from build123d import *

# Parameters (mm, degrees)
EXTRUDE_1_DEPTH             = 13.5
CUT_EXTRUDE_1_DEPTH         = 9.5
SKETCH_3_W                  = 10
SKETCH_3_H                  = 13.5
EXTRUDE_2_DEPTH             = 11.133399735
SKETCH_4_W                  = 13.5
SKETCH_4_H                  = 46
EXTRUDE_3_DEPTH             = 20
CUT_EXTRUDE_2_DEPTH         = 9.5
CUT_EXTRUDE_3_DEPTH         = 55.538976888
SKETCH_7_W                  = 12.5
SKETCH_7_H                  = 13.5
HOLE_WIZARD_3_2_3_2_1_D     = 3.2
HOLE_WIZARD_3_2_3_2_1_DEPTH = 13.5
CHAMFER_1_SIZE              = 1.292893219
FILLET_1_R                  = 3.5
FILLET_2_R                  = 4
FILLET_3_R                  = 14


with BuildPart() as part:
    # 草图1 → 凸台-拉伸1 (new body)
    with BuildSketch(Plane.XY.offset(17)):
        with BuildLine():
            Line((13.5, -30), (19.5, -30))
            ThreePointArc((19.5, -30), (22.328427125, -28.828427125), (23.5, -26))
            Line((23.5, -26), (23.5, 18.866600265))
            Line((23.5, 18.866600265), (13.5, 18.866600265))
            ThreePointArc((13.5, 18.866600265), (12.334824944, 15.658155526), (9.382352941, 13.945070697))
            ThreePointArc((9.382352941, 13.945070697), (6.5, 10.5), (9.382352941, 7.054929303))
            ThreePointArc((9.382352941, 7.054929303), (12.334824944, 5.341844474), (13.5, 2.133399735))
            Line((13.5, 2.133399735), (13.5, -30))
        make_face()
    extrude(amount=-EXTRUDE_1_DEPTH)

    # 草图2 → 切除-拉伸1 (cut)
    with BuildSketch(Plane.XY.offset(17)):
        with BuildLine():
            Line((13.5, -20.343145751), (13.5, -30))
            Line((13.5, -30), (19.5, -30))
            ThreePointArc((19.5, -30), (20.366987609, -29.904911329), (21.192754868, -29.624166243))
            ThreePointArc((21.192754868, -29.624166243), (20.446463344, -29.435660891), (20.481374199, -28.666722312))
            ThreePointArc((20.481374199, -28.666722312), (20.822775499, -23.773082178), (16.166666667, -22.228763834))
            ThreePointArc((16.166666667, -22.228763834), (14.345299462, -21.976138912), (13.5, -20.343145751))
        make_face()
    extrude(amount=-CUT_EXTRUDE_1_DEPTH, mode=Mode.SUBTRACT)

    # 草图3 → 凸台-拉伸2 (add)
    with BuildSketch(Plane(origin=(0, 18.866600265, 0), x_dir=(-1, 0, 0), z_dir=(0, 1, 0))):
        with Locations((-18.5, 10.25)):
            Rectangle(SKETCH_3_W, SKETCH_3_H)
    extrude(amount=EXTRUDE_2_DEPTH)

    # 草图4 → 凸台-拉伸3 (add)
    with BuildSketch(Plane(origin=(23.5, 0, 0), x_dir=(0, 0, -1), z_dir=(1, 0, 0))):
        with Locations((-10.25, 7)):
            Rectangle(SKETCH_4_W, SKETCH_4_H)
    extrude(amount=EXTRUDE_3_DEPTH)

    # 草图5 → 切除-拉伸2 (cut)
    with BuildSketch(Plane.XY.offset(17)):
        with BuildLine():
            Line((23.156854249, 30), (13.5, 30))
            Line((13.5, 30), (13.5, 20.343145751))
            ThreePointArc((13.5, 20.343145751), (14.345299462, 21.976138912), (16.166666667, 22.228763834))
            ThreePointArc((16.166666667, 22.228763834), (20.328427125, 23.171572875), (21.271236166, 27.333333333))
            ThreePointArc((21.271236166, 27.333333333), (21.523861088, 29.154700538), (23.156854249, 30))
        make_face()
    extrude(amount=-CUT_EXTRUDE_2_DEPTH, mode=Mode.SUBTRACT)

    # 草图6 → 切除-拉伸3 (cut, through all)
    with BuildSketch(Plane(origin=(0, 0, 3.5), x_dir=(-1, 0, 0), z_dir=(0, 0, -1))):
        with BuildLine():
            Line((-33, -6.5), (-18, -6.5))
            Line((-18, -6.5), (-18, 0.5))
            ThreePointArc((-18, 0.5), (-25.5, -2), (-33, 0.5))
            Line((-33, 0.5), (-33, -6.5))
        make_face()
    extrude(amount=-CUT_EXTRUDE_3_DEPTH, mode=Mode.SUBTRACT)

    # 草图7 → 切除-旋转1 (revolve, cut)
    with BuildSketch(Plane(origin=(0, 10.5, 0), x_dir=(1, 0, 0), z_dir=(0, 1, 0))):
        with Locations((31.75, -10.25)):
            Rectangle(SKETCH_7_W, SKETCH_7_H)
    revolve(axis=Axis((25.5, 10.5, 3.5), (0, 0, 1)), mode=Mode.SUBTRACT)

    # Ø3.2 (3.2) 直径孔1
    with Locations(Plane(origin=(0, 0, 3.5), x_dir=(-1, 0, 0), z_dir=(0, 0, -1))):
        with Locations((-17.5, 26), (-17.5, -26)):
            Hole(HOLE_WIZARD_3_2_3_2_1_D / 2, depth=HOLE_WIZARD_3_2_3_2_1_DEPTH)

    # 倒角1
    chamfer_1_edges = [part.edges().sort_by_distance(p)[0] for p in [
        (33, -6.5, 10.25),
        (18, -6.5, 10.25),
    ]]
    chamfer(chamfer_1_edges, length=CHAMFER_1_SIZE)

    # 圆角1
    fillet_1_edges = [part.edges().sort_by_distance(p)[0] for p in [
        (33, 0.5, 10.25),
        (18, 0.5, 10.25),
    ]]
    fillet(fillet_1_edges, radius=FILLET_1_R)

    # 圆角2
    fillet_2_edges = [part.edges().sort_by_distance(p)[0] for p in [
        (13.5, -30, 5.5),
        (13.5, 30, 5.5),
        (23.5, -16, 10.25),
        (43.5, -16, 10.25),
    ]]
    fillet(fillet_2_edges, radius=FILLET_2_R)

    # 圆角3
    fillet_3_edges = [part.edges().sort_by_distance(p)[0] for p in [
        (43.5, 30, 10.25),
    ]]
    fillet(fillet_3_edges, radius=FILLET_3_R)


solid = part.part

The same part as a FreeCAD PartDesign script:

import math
import FreeCAD as App
import Part
import Sketcher

V = App.Vector
Q = App.Units.Quantity


def edges_at(feature, points):
    """Names of the edges that pass closest to the given points."""
    edges = feature.Shape.Edges
    near = lambda p: min(range(len(edges)), key=lambda i: edges[i].distToShape(Part.Vertex(*p))[0])
    return sorted({f"Edge{near(p) + 1}" for p in points})

doc = App.newDocument("Part")
body = doc.addObject("PartDesign::Body", "Body")

# Sketch on XY plane
sketch1 = body.newObject("Sketcher::SketchObject", "Sketch")
sketch1.AttachmentSupport = (doc.getObject("XY_Plane"), [""])
sketch1.MapMode = "FlatFace"
sketch1.AttachmentOffset = App.Placement(V(0, 0, 17), App.Rotation())
sketch1.addGeometry([
    Part.LineSegment(V(13.5, -30, 0), V(19.5, -30, 0)),  # 0
    Part.ArcOfCircle(Part.Circle(V(19.5, -26, 0), V(0, 0, 1), 4), math.radians(-90), math.radians(0)),  # 1
    Part.LineSegment(V(23.5, -26, 0), V(23.5, 18.8666, 0)),  # 2
    Part.LineSegment(V(23.5, 18.8666, 0), V(13.5, 18.8666, 0)),  # 3
    Part.ArcOfCircle(Part.Circle(V(8.5, 18.8666, 0), V(0, 0, 1), 5), math.radians(-79.835751), math.radians(0)),  # 4
    Part.ArcOfCircle(Part.Circle(V(10, 10.5, 0), V(0, 0, 1), 3.5), math.radians(100.164249), math.radians(259.835751)),  # 5
    Part.ArcOfCircle(Part.Circle(V(8.5, 2.1334, 0), V(0, 0, 1), 5), math.radians(0), math.radians(79.835751)),  # 6
    Part.LineSegment(V(13.5, 2.1334, 0), V(13.5, -30, 0)),  # 7
], False)
sketch1.addConstraint([
    Sketcher.Constraint("Tangent", 0, 2, 1, 1),
    Sketcher.Constraint("Tangent", 1, 2, 2, 1),
    Sketcher.Constraint("Coincident", 2, 2, 3, 1),
    Sketcher.Constraint("Coincident", 3, 2, 4, 2),
    Sketcher.Constraint("Tangent", 4, 1, 5, 1),
    Sketcher.Constraint("Tangent", 5, 2, 6, 2),
    Sketcher.Constraint("Tangent", 6, 1, 7, 1),
    Sketcher.Constraint("Coincident", 7, 2, 0, 1),
    Sketcher.Constraint("Horizontal", 0),
    Sketcher.Constraint("Vertical", 2),
    Sketcher.Constraint("Horizontal", 3),
    Sketcher.Constraint("Vertical", 7),
    Sketcher.Constraint("Equal", 4, 6),
    Sketcher.Constraint("Horizontal", 4, 3, 2, 2),
    Sketcher.Constraint("Vertical", 4, 3, 6, 3),
    Sketcher.Constraint("Radius", 1, Q("4 mm")),
    Sketcher.Constraint("Radius", 4, Q("5 mm")),
    Sketcher.Constraint("Radius", 5, Q("3.5 mm")),
    Sketcher.Constraint("DistanceX", 0, 1, 0, 2, Q("6 mm")),
    Sketcher.Constraint("DistanceY", 1, 3, -1, 1, Q("26 mm")),
    Sketcher.Constraint("DistanceX", -1, 1, 5, 3, Q("10 mm")),
    Sketcher.Constraint("DistanceX", -1, 1, 1, 3, Q("19.5 mm")),
    Sketcher.Constraint("DistanceY", -1, 1, 5, 3, Q("10.5 mm")),
])
pad1 = body.newObject("PartDesign::Pad", "Pad")
pad1.Profile = sketch1
pad1.Length = 13.5
pad1.Reversed = True

# Sketch on XY plane
sketch2 = body.newObject("Sketcher::SketchObject", "Sketch001")
sketch2.AttachmentSupport = (doc.getObject("XY_Plane"), [""])
sketch2.MapMode = "FlatFace"
sketch2.AttachmentOffset = App.Placement(V(0, 0, 17), App.Rotation())
sketch2.addGeometry([
    Part.LineSegment(V(13.5, -20.343146, 0), V(13.5, -30, 0)),  # 0
    Part.LineSegment(V(13.5, -30, 0), V(19.5, -30, 0)),  # 1
    Part.ArcOfCircle(Part.Circle(V(19.5, -26, 0), V(0, 0, 1), 4), math.radians(-90), math.radians(-64.963931)),  # 2
    Part.ArcOfCircle(Part.Circle(V(20.935125, -29.072585, 0), V(0, 0, 1), 0.608781), math.radians(138.188616), math.radians(295.036069)),  # 3
    Part.ArcOfCircle(Part.Circle(V(17.5, -26, 0), V(0, 0, 1), 4), math.radians(-41.811384), math.radians(109.471221)),  # 4
    Part.ArcOfCircle(Part.Circle(V(15.5, -20.343146, 0), V(0, 0, 1), 2), math.radians(-180), math.radians(-70.528779)),  # 5
], False)
sketch2.addConstraint([
    Sketcher.Constraint("Coincident", 0, 2, 1, 1),
    Sketcher.Constraint("Tangent", 1, 2, 2, 1),
    Sketcher.Constraint("Tangent", 2, 2, 3, 2),
    Sketcher.Constraint("Tangent", 3, 1, 4, 1),
    Sketcher.Constraint("Tangent", 4, 2, 5, 2),
    Sketcher.Constraint("Tangent", 5, 1, 0, 1),
    Sketcher.Constraint("Vertical", 0),
    Sketcher.Constraint("Horizontal", 1),
    Sketcher.Constraint("Equal", 2, 4),
    Sketcher.Constraint("Horizontal", 2, 3, 4, 3),
    Sketcher.Constraint("Radius", 2, Q("4 mm")),
    Sketcher.Constraint("Radius", 5, Q("2 mm")),
    Sketcher.Constraint("DistanceX", 1, 1, 1, 2, Q("6 mm")),
    Sketcher.Constraint("DistanceY", 2, 3, -1, 1, Q("26 mm")),
    Sketcher.Constraint("DistanceX", 4, 3, 2, 3, Q("2 mm")),
    Sketcher.Constraint("DistanceX", -1, 1, 2, 3, Q("19.5 mm")),
    Sketcher.Constraint("Radius", 3, Q("0.608781 mm")),
])
pocket1 = body.newObject("PartDesign::Pocket", "Pocket")
pocket1.Profile = sketch2
pocket1.Length = 9.5

# Sketch on XZ plane
sketch3 = body.newObject("Sketcher::SketchObject", "Sketch002")
sketch3.AttachmentSupport = (doc.getObject("XZ_Plane"), [""])
sketch3.MapMode = "FlatFace"
sketch3.AttachmentOffset = App.Placement(V(0, 0, -18.8666), App.Rotation())
sketch3.addGeometry([
    Part.LineSegment(V(23.5, 17, 0), V(23.5, 3.5, 0)),
    Part.LineSegment(V(23.5, 3.5, 0), V(13.5, 3.5, 0)),
    Part.LineSegment(V(13.5, 3.5, 0), V(13.5, 17, 0)),
    Part.LineSegment(V(13.5, 17, 0), V(23.5, 17, 0)),
], False)
sketch3.addConstraint([
    Sketcher.Constraint("Coincident", 0, 2, 1, 1),
    Sketcher.Constraint("Coincident", 1, 2, 2, 1),
    Sketcher.Constraint("Coincident", 2, 2, 3, 1),
    Sketcher.Constraint("Coincident", 3, 2, 0, 1),
    Sketcher.Constraint("Vertical", 0),
    Sketcher.Constraint("Horizontal", 1),
    Sketcher.Constraint("Vertical", 2),
    Sketcher.Constraint("Horizontal", 3),
    Sketcher.Constraint("DistanceX", 1, 2, 1, 1, Q("10 mm")),
    Sketcher.Constraint("DistanceY", 0, 2, 0, 1, Q("13.5 mm")),
    Sketcher.Constraint("DistanceY", -1, 1, 2, 2, Q("17 mm")),
    Sketcher.Constraint("DistanceX", -1, 1, 0, 2, Q("23.5 mm")),
])
pad2 = body.newObject("PartDesign::Pad", "Pad001")
pad2.Profile = sketch3
pad2.Length = 11.1334
pad2.Reversed = True

# Sketch on YZ plane
sketch4 = body.newObject("Sketcher::SketchObject", "Sketch003")
sketch4.AttachmentSupport = (doc.getObject("YZ_Plane"), [""])
sketch4.MapMode = "FlatFace"
sketch4.AttachmentOffset = App.Placement(V(0, 0, 23.5), App.Rotation())
sketch4.addGeometry([
    Part.LineSegment(V(30, 17, 0), V(-16, 17, 0)),
    Part.LineSegment(V(-16, 17, 0), V(-16, 3.5, 0)),
    Part.LineSegment(V(-16, 3.5, 0), V(30, 3.5, 0)),
    Part.LineSegment(V(30, 3.5, 0), V(30, 17, 0)),
], False)
sketch4.addConstraint([
    Sketcher.Constraint("Coincident", 0, 2, 1, 1),
    Sketcher.Constraint("Coincident", 1, 2, 2, 1),
    Sketcher.Constraint("Coincident", 2, 2, 3, 1),
    Sketcher.Constraint("Coincident", 3, 2, 0, 1),
    Sketcher.Constraint("Horizontal", 0),
    Sketcher.Constraint("Vertical", 1),
    Sketcher.Constraint("Horizontal", 2),
    Sketcher.Constraint("Vertical", 3),
    Sketcher.Constraint("DistanceX", 0, 2, 0, 1, Q("46 mm")),
    Sketcher.Constraint("DistanceY", 1, 2, 1, 1, Q("13.5 mm")),
    Sketcher.Constraint("DistanceX", 0, 2, -1, 1, Q("16 mm")),
    Sketcher.Constraint("DistanceY", -1, 1, 0, 2, Q("17 mm")),
])
pad3 = body.newObject("PartDesign::Pad", "Pad002")
pad3.Profile = sketch4
pad3.Length = 20

# Sketch on XY plane
sketch5 = body.newObject("Sketcher::SketchObject", "Sketch004")
sketch5.AttachmentSupport = (doc.getObject("XY_Plane"), [""])
sketch5.MapMode = "FlatFace"
sketch5.AttachmentOffset = App.Placement(V(0, 0, 17), App.Rotation())
sketch5.addGeometry([
    Part.LineSegment(V(23.156854, 30, 0), V(13.5, 30, 0)),  # 0
    Part.LineSegment(V(13.5, 30, 0), V(13.5, 20.343146, 0)),  # 1
    Part.ArcOfCircle(Part.Circle(V(15.5, 20.343146, 0), V(0, 0, 1), 2), math.radians(70.528779), math.radians(180)),  # 2
    Part.ArcOfCircle(Part.Circle(V(17.5, 26, 0), V(0, 0, 1), 4), math.radians(-109.471221), math.radians(19.471221)),  # 3
    Part.ArcOfCircle(Part.Circle(V(23.156854, 28, 0), V(0, 0, 1), 2), math.radians(90), math.radians(199.471221)),  # 4
], False)
sketch5.addConstraint([
    Sketcher.Constraint("Coincident", 0, 2, 1, 1),
    Sketcher.Constraint("Tangent", 1, 2, 2, 2),
    Sketcher.Constraint("Tangent", 2, 1, 3, 1),
    Sketcher.Constraint("Tangent", 3, 2, 4, 2),
    Sketcher.Constraint("Tangent", 4, 1, 0, 1),
    Sketcher.Constraint("Horizontal", 0),
    Sketcher.Constraint("Vertical", 1),
    Sketcher.Constraint("Equal", 2, 4),
    Sketcher.Constraint("Equal", 0, 1),
    Sketcher.Constraint("Radius", 2, Q("2 mm")),
    Sketcher.Constraint("Radius", 3, Q("4 mm")),
    Sketcher.Constraint("DistanceY", -1, 1, 3, 3, Q("26 mm")),
    Sketcher.Constraint("DistanceY", -1, 1, 4, 3, Q("28 mm")),
    Sketcher.Constraint("DistanceX", -1, 1, 2, 3, Q("15.5 mm")),
])
pocket2 = body.newObject("PartDesign::Pocket", "Pocket001")
pocket2.Profile = sketch5
pocket2.Length = 9.5

# Sketch on XY plane
sketch6 = body.newObject("Sketcher::SketchObject", "Sketch005")
sketch6.AttachmentSupport = (doc.getObject("XY_Plane"), [""])
sketch6.MapMode = "FlatFace"
sketch6.AttachmentOffset = App.Placement(V(0, 0, 3.5), App.Rotation())
sketch6.addGeometry([
    Part.LineSegment(V(33, -6.5, 0), V(18, -6.5, 0)),
    Part.LineSegment(V(18, -6.5, 0), V(18, 0.5, 0)),
    Part.ArcOfCircle(Part.Circle(V(25.5, 10.5, 0), V(0, 0, 1), 12.5), math.radians(-126.869898), math.radians(-53.130102)),
    Part.LineSegment(V(33, 0.5, 0), V(33, -6.5, 0)),
], False)
sketch6.addConstraint([
    Sketcher.Constraint("Coincident", 0, 2, 1, 1),
    Sketcher.Constraint("Coincident", 1, 2, 2, 1),
    Sketcher.Constraint("Coincident", 2, 2, 3, 1),
    Sketcher.Constraint("Coincident", 3, 2, 0, 1),
    Sketcher.Constraint("Horizontal", 0),
    Sketcher.Constraint("Vertical", 1),
    Sketcher.Constraint("Vertical", 3),
    Sketcher.Constraint("Horizontal", 1, 2, 2, 2),
    Sketcher.Constraint("Radius", 2, Q("12.5 mm")),
    Sketcher.Constraint("DistanceX", 0, 2, 0, 1, Q("15 mm")),
    Sketcher.Constraint("DistanceY", 1, 1, 1, 2, Q("7 mm")),
    Sketcher.Constraint("DistanceX", -1, 1, 0, 2, Q("18 mm")),
    Sketcher.Constraint("DistanceY", -1, 1, 2, 3, Q("10.5 mm")),
])
pocket3 = body.newObject("PartDesign::Pocket", "Pocket002")
pocket3.Profile = sketch6
pocket3.Type = "ThroughAll"
pocket3.Reversed = True

# Sketch on XZ plane
sketch7 = body.newObject("Sketcher::SketchObject", "Sketch006")
sketch7.AttachmentSupport = (doc.getObject("XZ_Plane"), [""])
sketch7.MapMode = "FlatFace"
sketch7.AttachmentOffset = App.Placement(V(0, 0, -10.5), App.Rotation())
sketch7.addGeometry([
    Part.LineSegment(V(25.5, 3.5, 0), V(25.5, 17, 0)),
    Part.LineSegment(V(25.5, 17, 0), V(38, 17, 0)),
    Part.LineSegment(V(38, 17, 0), V(38, 3.5, 0)),
    Part.LineSegment(V(38, 3.5, 0), V(25.5, 3.5, 0)),
], False)
sketch7.addGeometry(Part.LineSegment(V(25.5, 3.5, 0), V(25.5, 17, 0)), True)  # axis
sketch7.addConstraint([
    Sketcher.Constraint("Coincident", 0, 2, 1, 1),
    Sketcher.Constraint("Coincident", 1, 2, 2, 1),
    Sketcher.Constraint("Coincident", 2, 2, 3, 1),
    Sketcher.Constraint("Coincident", 3, 2, 0, 1),
    Sketcher.Constraint("Vertical", 0),
    Sketcher.Constraint("Horizontal", 1),
    Sketcher.Constraint("Vertical", 2),
    Sketcher.Constraint("Horizontal", 3),
    Sketcher.Constraint("Vertical", 4),
    Sketcher.Constraint("Coincident", 4, 1, 3, 2),
    Sketcher.Constraint("Horizontal", 1, 2, 4, 2),
    Sketcher.Constraint("DistanceX", 1, 1, 1, 2, Q("12.5 mm")),
    Sketcher.Constraint("DistanceY", 0, 1, 0, 2, Q("13.5 mm")),
    Sketcher.Constraint("DistanceY", -1, 1, 0, 2, Q("17 mm")),
    Sketcher.Constraint("DistanceX", -1, 1, 1, 2, Q("38 mm")),
])
groove = body.newObject("PartDesign::Groove", "Groove")
groove.Profile = sketch7
groove.ReferenceAxis = (sketch7, ["Axis0"])
groove.Angle = 360

# Sketch on XY plane
sketch8 = body.newObject("Sketcher::SketchObject", "Sketch007")
sketch8.AttachmentSupport = (doc.getObject("XY_Plane"), [""])
sketch8.MapMode = "FlatFace"
sketch8.AttachmentOffset = App.Placement(V(0, 0, 3.5), App.Rotation())
sketch8.addGeometry([
    Part.Circle(V(17.5, 26, 0), V(0, 0, 1), 1.6),
    Part.Circle(V(17.5, -26, 0), V(0, 0, 1), 1.6),
], False)
sketch8.addConstraint([
    Sketcher.Constraint("Equal", 0, 1),
    Sketcher.Constraint("Symmetric", 0, 3, 1, 3, -1),
    Sketcher.Constraint("Diameter", 0, Q("3.2 mm")),
    Sketcher.Constraint("DistanceY", -1, 1, 0, 3, Q("26 mm")),
    Sketcher.Constraint("DistanceX", -1, 1, 0, 3, Q("17.5 mm")),
])
doc.recompute()
hole = body.newObject("PartDesign::Hole", "Hole")
hole.Profile = sketch8
hole.ThreadType = "None"
hole.Diameter = 3.2
hole.DepthType = "Dimension"
hole.Depth = 13.5
hole.DrillPoint = "Flat"
hole.Reversed = True
doc.recompute()

chamfer = body.newObject("PartDesign::Chamfer", "Chamfer")
chamfer.Base = (hole, edges_at(hole, [(33, -6.5, 10.25), (18, -6.5, 10.25)]))
chamfer.Size = 1.292893
doc.recompute()

fillet = body.newObject("PartDesign::Fillet", "Fillet")
fillet.Base = (chamfer, edges_at(chamfer, [(33, 0.5, 10.25), (18, 0.5, 10.25)]))
fillet.Radius = 3.5
doc.recompute()

fillet2 = body.newObject("PartDesign::Fillet", "Fillet001")
fillet2.Base = (fillet, edges_at(fillet, [
    (13.5, -30, 5.5),
    (13.5, 30, 5.5),
    (23.5, -16, 10.25),
    (43.5, -16, 10.25),
]))
fillet2.Radius = 4
doc.recompute()

fillet3 = body.newObject("PartDesign::Fillet", "Fillet002")
fillet3.Base = (fillet2, edges_at(fillet2, [(43.5, 30, 10.25)]))
fillet3.Radius = 14

doc.recompute()
